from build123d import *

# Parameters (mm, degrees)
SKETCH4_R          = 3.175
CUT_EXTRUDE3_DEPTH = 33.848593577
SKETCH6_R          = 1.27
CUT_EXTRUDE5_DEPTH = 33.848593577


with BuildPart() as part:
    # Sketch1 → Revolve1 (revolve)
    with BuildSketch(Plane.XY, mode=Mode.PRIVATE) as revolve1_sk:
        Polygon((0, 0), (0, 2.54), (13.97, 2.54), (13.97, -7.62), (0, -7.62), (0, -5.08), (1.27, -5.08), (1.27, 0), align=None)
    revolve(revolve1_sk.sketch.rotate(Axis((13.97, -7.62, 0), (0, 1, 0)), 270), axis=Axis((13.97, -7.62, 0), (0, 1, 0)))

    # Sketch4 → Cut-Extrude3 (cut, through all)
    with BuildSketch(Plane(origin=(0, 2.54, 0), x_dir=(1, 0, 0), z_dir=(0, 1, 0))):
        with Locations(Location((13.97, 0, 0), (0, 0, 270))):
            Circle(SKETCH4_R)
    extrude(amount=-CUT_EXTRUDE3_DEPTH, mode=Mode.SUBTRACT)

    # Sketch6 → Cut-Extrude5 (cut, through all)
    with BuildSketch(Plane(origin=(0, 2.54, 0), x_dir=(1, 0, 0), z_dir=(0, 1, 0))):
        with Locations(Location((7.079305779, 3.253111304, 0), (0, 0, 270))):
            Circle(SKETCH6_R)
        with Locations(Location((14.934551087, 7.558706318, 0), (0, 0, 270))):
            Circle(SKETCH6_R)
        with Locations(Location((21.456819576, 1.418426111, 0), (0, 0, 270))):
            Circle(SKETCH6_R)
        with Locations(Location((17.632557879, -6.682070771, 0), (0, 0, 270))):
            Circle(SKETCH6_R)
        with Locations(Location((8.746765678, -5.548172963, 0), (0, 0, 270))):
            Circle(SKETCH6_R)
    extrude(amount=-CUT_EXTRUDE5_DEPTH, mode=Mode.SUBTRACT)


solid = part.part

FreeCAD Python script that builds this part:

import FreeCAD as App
import Part
import Sketcher
Q = App.Units.Quantity

doc = App.newDocument("Part")
body = doc.addObject("PartDesign::Body", "Body")

# Sketch on XY plane
sketch1 = body.newObject("Sketcher::SketchObject", "Sketch")
sketch1.AttachmentSupport = (doc.getObject("XY_Plane"), [""])
sketch1.MapMode = "FlatFace"
sketch1.addGeometry([
    Part.LineSegment(App.Vector(0, 2.5, 0), App.Vector(0, 0, 0)),  # 0
    Part.LineSegment(App.Vector(0, 0, 0), App.Vector(1.3, 0, 0)),  # 1
    Part.LineSegment(App.Vector(1.3, 0, 0), App.Vector(1.3, -5.1, 0)),  # 2
    Part.LineSegment(App.Vector(1.3, -5.1, 0), App.Vector(0, -5.1, 0)),  # 3
    Part.LineSegment(App.Vector(0, -5.1, 0), App.Vector(0, -7.6, 0)),  # 4
    Part.LineSegment(App.Vector(0, -7.6, 0), App.Vector(14, -7.6, 0)),  # 5
    Part.LineSegment(App.Vector(14, -7.6, 0), App.Vector(14, 2.5, 0)),  # 6
    Part.LineSegment(App.Vector(14, 2.5, 0), App.Vector(0, 2.5, 0)),  # 7
], False)
sketch1.addGeometry(Part.LineSegment(App.Vector(14, -7.6, 0), App.Vector(14, 2.5, 0)), True)  # axis
sketch1.addConstraint([
    Sketcher.Constraint("Coincident", 0, 2, 1, 1),
    Sketcher.Constraint("Coincident", 1, 2, 2, 1),
    Sketcher.Constraint("Coincident", 2, 2, 3, 1),
    Sketcher.Constraint("Coincident", 3, 2, 4, 1),
    Sketcher.Constraint("Coincident", 4, 2, 5, 1),
    Sketcher.Constraint("Coincident", 5, 2, 6, 1),
    Sketcher.Constraint("Coincident", 6, 2, 7, 1),
    Sketcher.Constraint("Coincident", 7, 2, 0, 1),
    Sketcher.Constraint("Vertical", 0),
    Sketcher.Constraint("Horizontal", 1),
    Sketcher.Constraint("Vertical", 2),
    Sketcher.Constraint("Horizontal", 3),
    Sketcher.Constraint("Vertical", 4),
    Sketcher.Constraint("Horizontal", 5),
    Sketcher.Constraint("Vertical", 6),
    Sketcher.Constraint("Horizontal", 7),
    Sketcher.Constraint("Vertical", 8),
    Sketcher.Constraint("Coincident", 0, 2, -1, 1),
    Sketcher.Constraint("Coincident", 8, 1, 5, 2),
    Sketcher.Constraint("PointOnObject", 3, 2, -2),
    Sketcher.Constraint("Horizontal", 7, 2, 8, 2),
    Sketcher.Constraint("Equal", 0, 4),
    Sketcher.Constraint("DistanceY", 0, 2, 0, 1, Q("0.1 in")),
    Sketcher.Constraint("DistanceY", 2, 2, 2, 1, Q("0.2 in")),
    Sketcher.Constraint("DistanceX", 1, 1, 1, 2, Q("0.05 in")),
    Sketcher.Constraint("DistanceX", 5, 1, 5, 2, Q("0.55 in")),
])
revolution = body.newObject("PartDesign::Revolution", "Revolution")
revolution.Profile = sketch1
revolution.ReferenceAxis = (sketch1, ["Axis0"])
revolution.Angle = 360

# Sketch on XZ plane
sketch2 = body.newObject("Sketcher::SketchObject", "Sketch001")
sketch2.AttachmentSupport = (doc.getObject("XZ_Plane"), [""])
sketch2.MapMode = "FlatFace"
sketch2.AttachmentOffset = App.Placement(App.Vector(0, 0, -0.1 * 25.4), App.Rotation())
sketch2.addGeometry(Part.Circle(App.Vector(14, 0, 0), App.Vector(0, 0, 1), 3.2), False)
sketch2.addConstraint([
    Sketcher.Constraint("PointOnObject", 0, 3, -1),
    Sketcher.Constraint("Diameter", 0, Q("0.25 in")),
    Sketcher.Constraint("DistanceX", -1, 1, 0, 3, Q("0.55 in")),
])
pocket1 = body.newObject("PartDesign::Pocket", "Pocket")
pocket1.Profile = sketch2
pocket1.Type = "ThroughAll"
pocket1.Reversed = True

# Sketch on XZ plane
sketch3 = body.newObject("Sketcher::SketchObject", "Sketch002")
sketch3.AttachmentSupport = (doc.getObject("XZ_Plane"), [""])
sketch3.MapMode = "FlatFace"
sketch3.AttachmentOffset = App.Placement(App.Vector(0, 0, -0.1 * 25.4), App.Rotation())
sketch3.addGeometry([
    Part.Circle(App.Vector(7.1, -3.3, 0), App.Vector(0, 0, 1), 1.3),  # 0
    Part.Circle(App.Vector(14.9, -7.6, 0), App.Vector(0, 0, 1), 1.3),  # 1
    Part.Circle(App.Vector(21.5, -1.4, 0), App.Vector(0, 0, 1), 1.3),  # 2
    Part.Circle(App.Vector(17.6, 6.7, 0), App.Vector(0, 0, 1), 1.3),  # 3
    Part.Circle(App.Vector(8.7, 5.5, 0), App.Vector(0, 0, 1), 1.3),  # 4
], False)
sketch3.addConstraint([
    Sketcher.Constraint("Equal", 0, 1),
    Sketcher.Constraint("Equal", 1, 2),
    Sketcher.Constraint("Equal", 2, 3),
    Sketcher.Constraint("Equal", 3, 4),
    Sketcher.Constraint("Diameter", 0, Q("0.1 in")),
    Sketcher.Constraint("DistanceY", 2, 3, 4, 3, Q("6.966599 mm")),
    Sketcher.Constraint("DistanceY", 0, 3, -1, 1, Q("3.253111 mm")),
    Sketcher.Constraint("DistanceX", -1, 1, 1, 3, Q("14.934551 mm")),
    Sketcher.Constraint("DistanceX", -1, 1, 2, 3, Q("21.45682 mm")),
    Sketcher.Constraint("DistanceY", -1, 1, 3, 3, Q("6.682071 mm")),
    Sketcher.Constraint("DistanceY", 1, 3, 2, 3, Q("6.14028 mm")),
    Sketcher.Constraint("DistanceX", 3, 3, 2, 3, Q("3.824262 mm")),
    Sketcher.Constraint("DistanceX", 0, 3, 4, 3, Q("1.66746 mm")),
    Sketcher.Constraint("DistanceX", -1, 1, 0, 3, Q("7.079306 mm")),
    Sketcher.Constraint("DistanceY", 1, 3, -1, 1, Q("7.558706 mm")),
])
pocket2 = body.newObject("PartDesign::Pocket", "Pocket001")
pocket2.Profile = sketch3
pocket2.Type = "ThroughAll"
pocket2.Reversed = True

doc.recompute()
